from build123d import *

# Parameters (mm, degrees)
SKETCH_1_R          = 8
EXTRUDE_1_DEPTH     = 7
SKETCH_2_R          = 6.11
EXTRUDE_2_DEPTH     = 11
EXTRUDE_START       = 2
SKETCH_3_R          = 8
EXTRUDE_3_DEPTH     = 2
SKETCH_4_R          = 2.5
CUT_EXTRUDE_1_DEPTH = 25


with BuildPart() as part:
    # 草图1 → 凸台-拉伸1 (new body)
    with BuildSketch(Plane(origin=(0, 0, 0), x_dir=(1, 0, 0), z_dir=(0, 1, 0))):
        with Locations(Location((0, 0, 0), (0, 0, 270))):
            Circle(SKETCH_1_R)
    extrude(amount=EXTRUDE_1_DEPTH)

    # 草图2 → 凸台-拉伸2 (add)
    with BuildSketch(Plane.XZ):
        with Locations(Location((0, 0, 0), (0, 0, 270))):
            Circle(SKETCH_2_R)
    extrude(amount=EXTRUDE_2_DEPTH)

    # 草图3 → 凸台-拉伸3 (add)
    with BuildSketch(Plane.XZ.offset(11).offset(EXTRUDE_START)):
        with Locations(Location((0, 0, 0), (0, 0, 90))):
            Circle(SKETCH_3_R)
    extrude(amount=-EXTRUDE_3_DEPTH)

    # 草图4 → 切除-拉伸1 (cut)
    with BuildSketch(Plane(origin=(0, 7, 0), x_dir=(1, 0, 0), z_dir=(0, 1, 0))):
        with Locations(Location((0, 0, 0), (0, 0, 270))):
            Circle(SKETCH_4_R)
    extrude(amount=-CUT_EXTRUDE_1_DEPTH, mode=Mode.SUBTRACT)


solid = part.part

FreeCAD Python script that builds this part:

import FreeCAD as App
import Part
import Sketcher
Q = App.Units.Quantity

doc = App.newDocument("Part")
body = doc.addObject("PartDesign::Body", "Body")

# Sketch on XZ plane
sketch1 = body.newObject("Sketcher::SketchObject", "Sketch")
sketch1.AttachmentSupport = (doc.getObject("XZ_Plane"), [""])
sketch1.MapMode = "FlatFace"
sketch1.addGeometry(Part.Circle(App.Vector(0, 0, 0), App.Vector(0, 0, 1), 8), False)
sketch1.addConstraint(Sketcher.Constraint("Coincident", 0, 3, -1, 1))
sketch1.addConstraint(Sketcher.Constraint("Diameter", 0, Q("16 mm")))
pad1 = body.newObject("PartDesign::Pad", "Pad")
pad1.Profile = sketch1
pad1.Length = 7
pad1.Reversed = True

# Sketch on XZ plane
sketch2 = body.newObject("Sketcher::SketchObject", "Sketch001")
sketch2.AttachmentSupport = (doc.getObject("XZ_Plane"), [""])
sketch2.MapMode = "FlatFace"
sketch2.addGeometry(Part.Circle(App.Vector(0, 0, 0), App.Vector(0, 0, 1), 6.11), False)
sketch2.addConstraint(Sketcher.Constraint("Coincident", 0, 3, -1, 1))
sketch2.addConstraint(Sketcher.Constraint("Diameter", 0, Q("12.22 mm")))
pad2 = body.newObject("PartDesign::Pad", "Pad001")
pad2.Profile = sketch2
pad2.Length = 11

# Sketch on XZ plane
sketch3 = body.newObject("Sketcher::SketchObject", "Sketch002")
sketch3.AttachmentSupport = (doc.getObject("XZ_Plane"), [""])
sketch3.MapMode = "FlatFace"
sketch3.AttachmentOffset = App.Placement(App.Vector(0, 0, 13), App.Rotation())
sketch3.addGeometry(Part.Circle(App.Vector(0, 0, 0), App.Vector(0, 0, 1), 8), False)
sketch3.addConstraint(Sketcher.Constraint("Coincident", 0, 3, -1, 1))
sketch3.addConstraint(Sketcher.Constraint("Diameter", 0, Q("16 mm")))
pad3 = body.newObject("PartDesign::Pad", "Pad002")
pad3.Profile = sketch3
pad3.Length = 2
pad3.Reversed = True

# Sketch on XZ plane
sketch4 = body.newObject("Sketcher::SketchObject", "Sketch003")
sketch4.AttachmentSupport = (doc.getObject("XZ_Plane"), [""])
sketch4.MapMode = "FlatFace"
sketch4.AttachmentOffset = App.Placement(App.Vector(0, 0, -7), App.Rotation())
sketch4.addGeometry(Part.Circle(App.Vector(0, 0, 0), App.Vector(0, 0, 1), 2.5), False)
sketch4.addConstraint(Sketcher.Constraint("Coincident", 0, 3, -1, 1))
sketch4.addConstraint(Sketcher.Constraint("Diameter", 0, Q("5 mm")))
pocket1 = body.newObject("PartDesign::Pocket", "Pocket")
pocket1.Profile = sketch4
pocket1.Length = 25
pocket1.Reversed = True

doc.recompute()
